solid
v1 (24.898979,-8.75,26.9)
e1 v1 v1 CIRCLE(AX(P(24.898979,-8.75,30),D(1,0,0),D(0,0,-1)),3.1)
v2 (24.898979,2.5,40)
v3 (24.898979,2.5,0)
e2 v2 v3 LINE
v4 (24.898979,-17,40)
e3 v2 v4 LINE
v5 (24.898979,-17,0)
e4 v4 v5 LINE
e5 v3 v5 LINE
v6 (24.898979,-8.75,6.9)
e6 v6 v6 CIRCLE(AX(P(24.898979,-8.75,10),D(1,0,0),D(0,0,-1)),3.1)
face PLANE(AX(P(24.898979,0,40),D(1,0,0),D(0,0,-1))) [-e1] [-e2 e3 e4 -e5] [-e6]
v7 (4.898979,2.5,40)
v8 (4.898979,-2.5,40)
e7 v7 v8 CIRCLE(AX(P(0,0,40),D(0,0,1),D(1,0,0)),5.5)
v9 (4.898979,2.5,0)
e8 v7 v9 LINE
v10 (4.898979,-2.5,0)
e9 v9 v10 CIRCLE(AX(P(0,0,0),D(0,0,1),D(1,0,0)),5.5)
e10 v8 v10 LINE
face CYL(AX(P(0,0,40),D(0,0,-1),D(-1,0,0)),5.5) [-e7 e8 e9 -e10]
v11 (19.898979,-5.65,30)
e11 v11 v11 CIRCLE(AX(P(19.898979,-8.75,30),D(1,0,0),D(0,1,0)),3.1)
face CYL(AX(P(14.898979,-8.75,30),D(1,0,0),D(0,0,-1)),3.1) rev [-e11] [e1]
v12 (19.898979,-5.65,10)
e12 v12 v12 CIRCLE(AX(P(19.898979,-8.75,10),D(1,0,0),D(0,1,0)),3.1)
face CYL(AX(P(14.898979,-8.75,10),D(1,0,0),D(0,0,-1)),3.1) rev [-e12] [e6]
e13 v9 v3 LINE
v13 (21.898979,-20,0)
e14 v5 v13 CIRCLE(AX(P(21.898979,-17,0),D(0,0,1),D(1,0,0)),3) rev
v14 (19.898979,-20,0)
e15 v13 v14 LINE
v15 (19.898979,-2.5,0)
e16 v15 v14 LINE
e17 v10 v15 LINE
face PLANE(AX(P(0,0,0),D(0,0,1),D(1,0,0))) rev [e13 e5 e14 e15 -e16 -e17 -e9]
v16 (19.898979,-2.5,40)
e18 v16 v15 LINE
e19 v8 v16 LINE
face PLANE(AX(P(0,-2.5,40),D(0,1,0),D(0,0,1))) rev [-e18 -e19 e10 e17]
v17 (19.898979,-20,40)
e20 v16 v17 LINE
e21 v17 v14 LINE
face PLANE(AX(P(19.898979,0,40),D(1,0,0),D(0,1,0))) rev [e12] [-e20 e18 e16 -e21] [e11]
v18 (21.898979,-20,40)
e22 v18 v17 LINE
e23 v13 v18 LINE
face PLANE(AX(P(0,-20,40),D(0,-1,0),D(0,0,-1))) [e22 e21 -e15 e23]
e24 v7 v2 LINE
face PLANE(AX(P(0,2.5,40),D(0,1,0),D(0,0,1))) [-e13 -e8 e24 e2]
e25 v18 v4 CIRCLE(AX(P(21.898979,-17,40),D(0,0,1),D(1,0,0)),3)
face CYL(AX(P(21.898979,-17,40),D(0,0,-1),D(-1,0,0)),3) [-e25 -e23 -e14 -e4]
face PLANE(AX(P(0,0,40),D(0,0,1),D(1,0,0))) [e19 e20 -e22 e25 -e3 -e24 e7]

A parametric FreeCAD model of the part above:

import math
import FreeCAD as App
import Part
import Sketcher
from FreeCAD import Vector


def edges_at(feature, points):
    """Names of the edges that pass closest to the given points."""
    edges = feature.Shape.Edges
    near = lambda p: min(range(len(edges)), key=lambda i: edges[i].distToShape(Part.Vertex(*p))[0])
    return sorted({f"Edge{near(p) + 1}" for p in points})

doc = App.newDocument("Part")
body = doc.addObject("PartDesign::Body", "Body")

# Sketch on XY plane
sketch1 = body.newObject("Sketcher::SketchObject", "Sketch")
sketch1.AttachmentSupport = (doc.getObject("XY_Plane"), [""])
sketch1.MapMode = "FlatFace"
sketch1.addGeometry(Part.LineSegment(Vector(5, -2, 0), Vector(20, -2, 0)), False)
sketch1.addGeometry(Part.LineSegment(Vector(20, -2, 0), Vector(20, -20, 0)), False)
sketch1.addGeometry(Part.LineSegment(Vector(20, -20, 0), Vector(25, -20, 0)), False)
sketch1.addGeometry(Part.LineSegment(Vector(25, -20, 0), Vector(25, 2, 0)), False)
sketch1.addGeometry(Part.LineSegment(Vector(25, 2, 0), Vector(5, 2, 0)), False)
sketch1.addGeometry(Part.ArcOfCircle(Part.Circle(Vector(0, 0, 0), Vector(0, 0, 1), 6), math.radians(27), math.radians(333)), False)
sketch1.addConstraint(Sketcher.Constraint("Coincident", 0, 2, 1, 1))
sketch1.addConstraint(Sketcher.Constraint("Coincident", 1, 2, 2, 1))
sketch1.addConstraint(Sketcher.Constraint("Coincident", 2, 2, 3, 1))
sketch1.addConstraint(Sketcher.Constraint("Coincident", 3, 2, 4, 1))
sketch1.addConstraint(Sketcher.Constraint("Coincident", 4, 2, 5, 1))
sketch1.addConstraint(Sketcher.Constraint("Coincident", 5, 2, 0, 1))
sketch1.addConstraint(Sketcher.Constraint("Horizontal", 0))
sketch1.addConstraint(Sketcher.Constraint("Vertical", 1))
sketch1.addConstraint(Sketcher.Constraint("Horizontal", 2))
sketch1.addConstraint(Sketcher.Constraint("Vertical", 3))
sketch1.addConstraint(Sketcher.Constraint("Horizontal", 4))
sketch1.addConstraint(Sketcher.Constraint("Coincident", 5, 3, -1, 1))
sketch1.addConstraint(Sketcher.Constraint("Vertical", 4, 2, 5, 2))
sketch1.addConstraint(Sketcher.Constraint("Radius", 5, 5.5))
sketch1.addConstraint(Sketcher.Constraint("DistanceX", 0, 1, 0, 2, 15.0))
sketch1.addConstraint(Sketcher.Constraint("DistanceX", 2, 1, 2, 2, 5.0))
sketch1.addConstraint(Sketcher.Constraint("DistanceY", 1, 2, 1, 1, 17.5))
sketch1.addConstraint(Sketcher.Constraint("DistanceY", 3, 1, 3, 2, 22.5))
pad1 = body.newObject("PartDesign::Pad", "Pad")
pad1.Profile = sketch1
pad1.Length = 40

# Sketch on YZ plane
sketch2 = body.newObject("Sketcher::SketchObject", "Sketch001")
sketch2.AttachmentSupport = (doc.getObject("YZ_Plane"), [""])
sketch2.MapMode = "FlatFace"
sketch2.AttachmentOffset = App.Placement(Vector(0, 0, 24.898979), App.Rotation())
sketch2.addGeometry(Part.Circle(Vector(-8.8, 30, 0), Vector(0, 0, 1), 3.1), False)
sketch2.addGeometry(Part.Circle(Vector(-8.8, 10, 0), Vector(0, 0, 1), 3.1), False)
sketch2.addConstraint(Sketcher.Constraint("Equal", 0, 1))
sketch2.addConstraint(Sketcher.Constraint("Vertical", 0, 3, 1, 3))
sketch2.addConstraint(Sketcher.Constraint("Diameter", 0, 6.2))
sketch2.addConstraint(Sketcher.Constraint("DistanceY", -1, 1, 0, 3, 30.0))
sketch2.addConstraint(Sketcher.Constraint("DistanceY", -1, 1, 1, 3, 10.0))
sketch2.addConstraint(Sketcher.Constraint("DistanceX", 0, 3, -1, 1, 8.75))
pocket1 = body.newObject("PartDesign::Pocket", "Pocket")
pocket1.Profile = sketch2
pocket1.Length = 10
doc.recompute()

fillet = body.newObject("PartDesign::Fillet", "Fillet")
fillet.Base = (pocket1, edges_at(pocket1, [(24.899, -20, 20)]))
fillet.Radius = 3

doc.recompute()
